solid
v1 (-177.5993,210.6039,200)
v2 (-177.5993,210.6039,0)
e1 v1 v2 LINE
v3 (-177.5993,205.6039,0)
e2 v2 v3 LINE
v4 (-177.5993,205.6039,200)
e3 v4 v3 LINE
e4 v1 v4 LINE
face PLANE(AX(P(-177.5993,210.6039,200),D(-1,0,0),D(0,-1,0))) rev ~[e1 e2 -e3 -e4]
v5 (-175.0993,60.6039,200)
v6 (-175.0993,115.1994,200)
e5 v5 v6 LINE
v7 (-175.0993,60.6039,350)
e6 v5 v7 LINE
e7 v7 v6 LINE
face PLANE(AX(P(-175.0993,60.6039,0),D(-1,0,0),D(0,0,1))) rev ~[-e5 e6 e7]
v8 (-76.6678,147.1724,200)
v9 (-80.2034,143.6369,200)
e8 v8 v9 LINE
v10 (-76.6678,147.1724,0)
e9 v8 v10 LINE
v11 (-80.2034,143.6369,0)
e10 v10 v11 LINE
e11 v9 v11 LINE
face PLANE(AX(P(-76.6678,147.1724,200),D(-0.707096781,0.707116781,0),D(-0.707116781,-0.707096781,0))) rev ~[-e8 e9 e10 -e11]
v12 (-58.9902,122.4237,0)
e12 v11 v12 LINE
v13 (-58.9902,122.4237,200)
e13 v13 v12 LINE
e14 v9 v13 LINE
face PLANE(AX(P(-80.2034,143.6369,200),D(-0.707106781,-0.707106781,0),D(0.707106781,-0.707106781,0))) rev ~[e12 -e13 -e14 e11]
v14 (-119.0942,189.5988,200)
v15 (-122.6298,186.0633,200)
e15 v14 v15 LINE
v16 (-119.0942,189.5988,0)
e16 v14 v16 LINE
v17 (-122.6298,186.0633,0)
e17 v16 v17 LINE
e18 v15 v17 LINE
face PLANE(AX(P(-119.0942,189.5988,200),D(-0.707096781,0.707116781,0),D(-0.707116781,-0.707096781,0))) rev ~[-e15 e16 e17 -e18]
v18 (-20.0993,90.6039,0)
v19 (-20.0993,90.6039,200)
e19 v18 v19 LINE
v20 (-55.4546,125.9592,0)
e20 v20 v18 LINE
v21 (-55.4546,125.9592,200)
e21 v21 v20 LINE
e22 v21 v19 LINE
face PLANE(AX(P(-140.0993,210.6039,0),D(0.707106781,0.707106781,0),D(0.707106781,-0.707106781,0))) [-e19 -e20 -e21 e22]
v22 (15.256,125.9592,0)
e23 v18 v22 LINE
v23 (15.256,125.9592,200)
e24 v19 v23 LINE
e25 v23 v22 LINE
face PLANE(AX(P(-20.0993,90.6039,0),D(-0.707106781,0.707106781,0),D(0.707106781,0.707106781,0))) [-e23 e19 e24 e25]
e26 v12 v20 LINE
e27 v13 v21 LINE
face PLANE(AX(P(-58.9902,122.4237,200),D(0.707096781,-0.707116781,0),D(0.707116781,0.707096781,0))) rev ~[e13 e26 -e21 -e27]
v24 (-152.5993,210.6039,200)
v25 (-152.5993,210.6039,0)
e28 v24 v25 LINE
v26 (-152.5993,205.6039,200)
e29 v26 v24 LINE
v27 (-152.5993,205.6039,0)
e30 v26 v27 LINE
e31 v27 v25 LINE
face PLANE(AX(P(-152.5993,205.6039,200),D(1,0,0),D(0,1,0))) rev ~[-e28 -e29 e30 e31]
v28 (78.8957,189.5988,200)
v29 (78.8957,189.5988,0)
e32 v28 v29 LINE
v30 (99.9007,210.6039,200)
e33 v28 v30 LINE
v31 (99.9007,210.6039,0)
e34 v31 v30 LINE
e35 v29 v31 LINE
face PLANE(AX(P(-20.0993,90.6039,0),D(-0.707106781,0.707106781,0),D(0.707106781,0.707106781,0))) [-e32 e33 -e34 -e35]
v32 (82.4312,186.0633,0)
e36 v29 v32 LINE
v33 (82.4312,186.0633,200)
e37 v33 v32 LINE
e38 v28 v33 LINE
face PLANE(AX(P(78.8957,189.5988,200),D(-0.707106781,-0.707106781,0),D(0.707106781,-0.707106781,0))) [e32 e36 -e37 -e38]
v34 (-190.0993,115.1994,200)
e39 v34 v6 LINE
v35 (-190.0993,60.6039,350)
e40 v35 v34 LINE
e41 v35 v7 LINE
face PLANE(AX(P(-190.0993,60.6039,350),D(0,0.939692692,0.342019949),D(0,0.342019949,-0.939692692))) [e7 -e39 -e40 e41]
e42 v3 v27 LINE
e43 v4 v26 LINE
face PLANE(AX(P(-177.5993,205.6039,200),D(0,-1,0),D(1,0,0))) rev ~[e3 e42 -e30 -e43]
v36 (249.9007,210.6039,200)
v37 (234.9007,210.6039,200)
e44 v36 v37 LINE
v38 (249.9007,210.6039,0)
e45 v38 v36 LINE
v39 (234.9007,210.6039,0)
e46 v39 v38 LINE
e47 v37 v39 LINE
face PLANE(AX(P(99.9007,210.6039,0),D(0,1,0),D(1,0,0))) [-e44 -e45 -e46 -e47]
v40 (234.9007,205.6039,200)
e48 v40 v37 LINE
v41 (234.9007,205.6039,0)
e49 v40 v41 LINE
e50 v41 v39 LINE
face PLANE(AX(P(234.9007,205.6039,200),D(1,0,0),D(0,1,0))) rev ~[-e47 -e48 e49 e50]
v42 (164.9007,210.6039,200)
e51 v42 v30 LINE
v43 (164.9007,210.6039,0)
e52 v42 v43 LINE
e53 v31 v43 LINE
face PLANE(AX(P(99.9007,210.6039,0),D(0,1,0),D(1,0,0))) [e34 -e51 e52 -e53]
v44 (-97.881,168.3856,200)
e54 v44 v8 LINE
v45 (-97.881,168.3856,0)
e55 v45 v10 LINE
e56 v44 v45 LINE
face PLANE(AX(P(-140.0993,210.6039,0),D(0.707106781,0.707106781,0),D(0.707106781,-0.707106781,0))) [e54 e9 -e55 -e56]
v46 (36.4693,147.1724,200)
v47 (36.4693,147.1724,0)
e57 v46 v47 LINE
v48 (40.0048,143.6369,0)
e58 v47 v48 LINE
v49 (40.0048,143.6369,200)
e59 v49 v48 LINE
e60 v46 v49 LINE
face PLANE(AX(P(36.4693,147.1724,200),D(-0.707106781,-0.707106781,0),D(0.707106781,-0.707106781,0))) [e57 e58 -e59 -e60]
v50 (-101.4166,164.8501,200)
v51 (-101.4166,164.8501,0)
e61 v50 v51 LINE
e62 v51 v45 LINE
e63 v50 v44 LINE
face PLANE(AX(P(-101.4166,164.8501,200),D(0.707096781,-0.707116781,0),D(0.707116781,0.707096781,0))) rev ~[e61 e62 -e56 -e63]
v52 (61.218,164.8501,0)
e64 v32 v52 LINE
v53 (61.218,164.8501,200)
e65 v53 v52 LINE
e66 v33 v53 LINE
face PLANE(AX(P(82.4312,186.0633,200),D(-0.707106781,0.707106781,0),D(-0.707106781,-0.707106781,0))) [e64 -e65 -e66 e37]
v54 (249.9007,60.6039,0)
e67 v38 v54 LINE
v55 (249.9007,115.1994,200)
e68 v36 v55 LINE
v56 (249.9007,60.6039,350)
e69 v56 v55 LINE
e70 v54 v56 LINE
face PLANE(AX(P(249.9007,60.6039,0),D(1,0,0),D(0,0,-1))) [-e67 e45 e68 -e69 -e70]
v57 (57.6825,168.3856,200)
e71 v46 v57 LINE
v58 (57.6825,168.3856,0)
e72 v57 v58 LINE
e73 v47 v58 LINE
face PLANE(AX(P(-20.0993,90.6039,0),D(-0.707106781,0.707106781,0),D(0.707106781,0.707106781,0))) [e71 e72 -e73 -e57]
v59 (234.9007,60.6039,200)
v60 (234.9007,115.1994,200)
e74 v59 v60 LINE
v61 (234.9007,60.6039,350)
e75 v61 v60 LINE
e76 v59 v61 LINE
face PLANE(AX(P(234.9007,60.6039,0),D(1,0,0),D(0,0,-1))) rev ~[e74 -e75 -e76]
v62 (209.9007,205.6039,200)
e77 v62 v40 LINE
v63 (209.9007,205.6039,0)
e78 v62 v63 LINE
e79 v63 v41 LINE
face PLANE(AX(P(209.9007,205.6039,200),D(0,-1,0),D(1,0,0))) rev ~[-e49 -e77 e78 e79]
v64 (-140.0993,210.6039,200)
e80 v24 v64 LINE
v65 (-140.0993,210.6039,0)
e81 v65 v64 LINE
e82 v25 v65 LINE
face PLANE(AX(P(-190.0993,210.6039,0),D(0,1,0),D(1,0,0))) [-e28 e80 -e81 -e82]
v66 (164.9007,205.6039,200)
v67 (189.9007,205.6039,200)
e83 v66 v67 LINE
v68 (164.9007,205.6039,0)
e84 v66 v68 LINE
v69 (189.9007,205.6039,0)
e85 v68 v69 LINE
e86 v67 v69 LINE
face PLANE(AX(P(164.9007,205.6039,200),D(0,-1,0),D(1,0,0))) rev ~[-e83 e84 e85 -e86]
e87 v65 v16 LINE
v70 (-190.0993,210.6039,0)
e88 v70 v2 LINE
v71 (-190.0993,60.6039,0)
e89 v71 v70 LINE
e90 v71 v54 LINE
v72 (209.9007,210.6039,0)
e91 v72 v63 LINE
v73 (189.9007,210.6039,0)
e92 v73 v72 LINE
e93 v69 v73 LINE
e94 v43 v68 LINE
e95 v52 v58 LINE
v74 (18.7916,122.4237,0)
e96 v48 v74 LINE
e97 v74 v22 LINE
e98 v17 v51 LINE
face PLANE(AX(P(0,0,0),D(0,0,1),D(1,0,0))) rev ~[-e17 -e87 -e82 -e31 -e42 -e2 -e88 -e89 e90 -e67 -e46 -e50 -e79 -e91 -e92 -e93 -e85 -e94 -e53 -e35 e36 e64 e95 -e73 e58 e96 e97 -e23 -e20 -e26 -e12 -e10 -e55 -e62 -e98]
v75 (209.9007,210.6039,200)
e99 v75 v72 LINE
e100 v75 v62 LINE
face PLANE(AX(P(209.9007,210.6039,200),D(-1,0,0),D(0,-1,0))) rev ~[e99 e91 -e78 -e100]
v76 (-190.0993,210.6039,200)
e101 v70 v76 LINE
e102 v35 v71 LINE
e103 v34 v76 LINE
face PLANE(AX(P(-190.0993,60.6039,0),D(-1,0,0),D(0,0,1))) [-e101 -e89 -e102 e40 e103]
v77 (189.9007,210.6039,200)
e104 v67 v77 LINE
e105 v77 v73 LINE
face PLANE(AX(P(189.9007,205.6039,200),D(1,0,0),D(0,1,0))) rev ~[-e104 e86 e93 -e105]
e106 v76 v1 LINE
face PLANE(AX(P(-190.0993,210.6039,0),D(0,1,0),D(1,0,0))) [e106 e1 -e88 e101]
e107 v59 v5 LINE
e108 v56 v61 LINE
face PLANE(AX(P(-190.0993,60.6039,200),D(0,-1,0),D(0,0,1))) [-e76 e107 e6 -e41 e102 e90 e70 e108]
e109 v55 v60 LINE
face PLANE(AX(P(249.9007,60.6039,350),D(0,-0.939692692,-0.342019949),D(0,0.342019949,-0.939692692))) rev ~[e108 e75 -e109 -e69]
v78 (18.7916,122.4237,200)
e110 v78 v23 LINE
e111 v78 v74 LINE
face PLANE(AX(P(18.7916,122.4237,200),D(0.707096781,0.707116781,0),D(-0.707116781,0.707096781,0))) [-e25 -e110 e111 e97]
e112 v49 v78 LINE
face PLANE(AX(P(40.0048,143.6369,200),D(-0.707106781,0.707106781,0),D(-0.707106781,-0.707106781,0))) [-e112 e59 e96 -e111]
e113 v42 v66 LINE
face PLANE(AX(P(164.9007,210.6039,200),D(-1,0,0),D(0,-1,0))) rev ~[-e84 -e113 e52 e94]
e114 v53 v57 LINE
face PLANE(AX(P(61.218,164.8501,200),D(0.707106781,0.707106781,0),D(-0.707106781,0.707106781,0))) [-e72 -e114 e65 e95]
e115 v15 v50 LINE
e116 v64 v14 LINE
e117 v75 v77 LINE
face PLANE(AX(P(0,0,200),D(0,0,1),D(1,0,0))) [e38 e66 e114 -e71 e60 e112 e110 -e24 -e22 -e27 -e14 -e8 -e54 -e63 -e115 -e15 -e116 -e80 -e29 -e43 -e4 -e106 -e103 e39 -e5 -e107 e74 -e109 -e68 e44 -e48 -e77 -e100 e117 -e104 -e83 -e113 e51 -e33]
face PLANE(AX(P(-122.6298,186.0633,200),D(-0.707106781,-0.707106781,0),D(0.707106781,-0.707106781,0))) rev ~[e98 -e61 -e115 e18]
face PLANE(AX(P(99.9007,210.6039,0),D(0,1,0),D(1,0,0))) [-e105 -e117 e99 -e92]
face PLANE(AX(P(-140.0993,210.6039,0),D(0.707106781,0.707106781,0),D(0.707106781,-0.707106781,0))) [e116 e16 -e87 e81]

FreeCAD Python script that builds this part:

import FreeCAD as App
import Part
import Sketcher
Q = App.Units.Quantity


def add_polygon(sketch, points):
    """Adds a closed chain of lines whose ends are joined by coincident constraints."""
    first, n = sketch.GeometryCount, len(points)
    for a, b in zip(points, points[1:] + points[:1]):
        sketch.addGeometry(Part.LineSegment(App.Vector(*a, 0), App.Vector(*b, 0)), False)
    for i in range(n):
        sketch.addConstraint(Sketcher.Constraint("Coincident", first + i, 2, first + (i + 1) % n, 1))

doc = App.newDocument("Part")
body = doc.addObject("PartDesign::Body", "Body")

# Sketch on XY plane
sketch1 = body.newObject("Sketcher::SketchObject", "Sketch")
sketch1.AttachmentSupport = (doc.getObject("XY_Plane"), [""])
sketch1.MapMode = "FlatFace"
add_polygon(sketch1, [(-190, 211), (-190, 61), (250, 61), (250, 211), (100, 211), (-20, 91), (-140, 211)])  # lines 0-6
sketch1.addConstraint([
    Sketcher.Constraint("Vertical", 0),
    Sketcher.Constraint("Horizontal", 1),
    Sketcher.Constraint("Vertical", 2),
    Sketcher.Constraint("Horizontal", 3),
    Sketcher.Constraint("Horizontal", 6),
    Sketcher.Constraint("Perpendicular", 4, 5),
    Sketcher.Constraint("Horizontal", 3, 2, 5, 2),
    Sketcher.Constraint("Equal", 3, 0),
    Sketcher.Constraint("Equal", 4, 5),
    Sketcher.Constraint("DistanceX", 3, 2, 3, 1, Q("150 mm")),
    Sketcher.Constraint("DistanceX", 6, 2, 6, 1, Q("50 mm")),
    Sketcher.Constraint("DistanceX", 0, 2, 4, 2, Q("170 mm")),
    Sketcher.Constraint("DistanceY", -1, 1, 0, 2, Q("60.604 mm")),
    Sketcher.Constraint("DistanceX", 0, 2, -1, 1, Q("190.0993 mm")),
])
pad1 = body.newObject("PartDesign::Pad", "Pad")
pad1.Profile = sketch1
pad1.Length = 200

# Sketch on YZ plane
sketch2 = body.newObject("Sketcher::SketchObject", "Sketch001")
sketch2.AttachmentSupport = (doc.getObject("YZ_Plane"), [""])
sketch2.MapMode = "FlatFace"
sketch2.AttachmentOffset = App.Placement(App.Vector(0, 0, 249.9007), App.Rotation())
add_polygon(sketch2, [(61, 350), (61, 200), (115, 200)])  # lines 0-2
sketch2.addConstraint([
    Sketcher.Constraint("Vertical", 0),
    Sketcher.Constraint("Horizontal", 1),
    Sketcher.Constraint("DistanceY", 0, 2, 0, 1, Q("150 mm")),
    Sketcher.Constraint("Angle", 2, Q("110 deg")),
    Sketcher.Constraint("DistanceY", -1, 1, 0, 2, Q("200 mm")),
    Sketcher.Constraint("DistanceX", -1, 1, 0, 2, Q("60.604 mm")),
])
pad2 = body.newObject("PartDesign::Pad", "Pad001")
pad2.Profile = sketch2
pad2.Length = 15
pad2.Reversed = True

# Sketch on YZ plane
sketch3 = body.newObject("Sketcher::SketchObject", "Sketch002")
sketch3.AttachmentSupport = (doc.getObject("YZ_Plane"), [""])
sketch3.MapMode = "FlatFace"
sketch3.AttachmentOffset = App.Placement(App.Vector(0, 0, -190.0993), App.Rotation())
add_polygon(sketch3, [(115, 200), (61, 200), (61, 350)])  # lines 0-2
sketch3.addConstraint([
    Sketcher.Constraint("Horizontal", 0),
    Sketcher.Constraint("Vertical", 1),
    Sketcher.Constraint("DistanceY", 1, 1, 1, 2, Q("150 mm")),
    Sketcher.Constraint("Angle", 2, Q("-70 deg")),
    Sketcher.Constraint("DistanceY", -1, 1, 0, 2, Q("200 mm")),
    Sketcher.Constraint("DistanceX", -1, 1, 0, 2, Q("60.604 mm")),
])
pad3 = body.newObject("PartDesign::Pad", "Pad002")
pad3.Profile = sketch3
pad3.Length = 15

# Sketch on XY plane
sketch4 = body.newObject("Sketcher::SketchObject", "Sketch003")
sketch4.AttachmentSupport = (doc.getObject("XY_Plane"), [""])
sketch4.MapMode = "FlatFace"
sketch4.AttachmentOffset = App.Placement(App.Vector(0, 0, 200), App.Rotation())
add_polygon(sketch4, [(-97.9, 168.4), (-119.1, 189.6), (-122.6, 186.1), (-101.4, 164.9)])  # lines 0-3
add_polygon(sketch4, [(-55.5, 126), (-76.7, 147.2), (-80.2, 143.6), (-59, 122.4)])  # lines 4-7
add_polygon(sketch4, [(-152.6, 205.6), (-152.6, 210.6), (-177.6, 210.6), (-177.6, 205.6)])  # lines 8-11
add_polygon(sketch4, [(36.5, 147.2), (15.3, 126), (18.8, 122.4), (40, 143.6)])  # lines 12-15
add_polygon(sketch4, [(78.9, 189.6), (57.7, 168.4), (61.2, 164.9), (82.4, 186.1)])  # lines 16-19
add_polygon(sketch4, [(189.9, 210.6), (164.9, 210.6), (164.9, 205.6), (189.9, 205.6)])  # lines 20-23
add_polygon(sketch4, [(234.9, 210.6), (209.9, 210.6), (209.9, 205.6), (234.9, 205.6)])  # lines 24-27
sketch4.addConstraint([
    Sketcher.Constraint("Vertical", 8),
    Sketcher.Constraint("Horizontal", 9),
    Sketcher.Constraint("Vertical", 10),
    Sketcher.Constraint("Horizontal", 11),
    Sketcher.Constraint("Horizontal", 20),
    Sketcher.Constraint("Vertical", 21),
    Sketcher.Constraint("Horizontal", 22),
    Sketcher.Constraint("Vertical", 23),
    Sketcher.Constraint("Horizontal", 24),
    Sketcher.Constraint("Vertical", 25),
    Sketcher.Constraint("Horizontal", 26),
    Sketcher.Constraint("Vertical", 27),
    Sketcher.Constraint("Perpendicular", 0, 1),
    Sketcher.Constraint("Perpendicular", 1, 2),
    Sketcher.Constraint("Perpendicular", 2, 3),
    Sketcher.Constraint("Perpendicular", 3, 4),
    Sketcher.Constraint("Perpendicular", 4, 5),
    Sketcher.Constraint("Perpendicular", 5, 6),
    Sketcher.Constraint("Perpendicular", 6, 7),
    Sketcher.Constraint("Parallel", 7, 12),
    Sketcher.Constraint("Perpendicular", 12, 13),
    Sketcher.Constraint("Perpendicular", 13, 14),
    Sketcher.Constraint("Perpendicular", 14, 15),
    Sketcher.Constraint("Perpendicular", 15, 16),
    Sketcher.Constraint("Perpendicular", 16, 17),
    Sketcher.Constraint("Perpendicular", 17, 18),
    Sketcher.Constraint("Perpendicular", 18, 19),
    Sketcher.Constraint("Horizontal", 7, 2, 12, 2),
    Sketcher.Constraint("Horizontal", 6, 2, 13, 2),
    Sketcher.Constraint("Horizontal", 5, 2, 14, 2),
    Sketcher.Constraint("Horizontal", 3, 2, 16, 2),
    Sketcher.Constraint("Horizontal", 2, 2, 17, 2),
    Sketcher.Constraint("Horizontal", 1, 2, 18, 2),
    Sketcher.Constraint("Horizontal", 9, 2, 20, 2),
    Sketcher.Constraint("Horizontal", 11, 2, 21, 2),
    Sketcher.Constraint("Horizontal", 23, 2, 24, 2),
    Sketcher.Constraint("Horizontal", 22, 2, 25, 2),
    Sketcher.Constraint("Equal", 11, 20),
    Sketcher.Constraint("Equal", 22, 24),
    Sketcher.Constraint("Equal", 2, 4),
    Sketcher.Constraint("Equal", 3, 5),
    Sketcher.Constraint("Equal", 6, 12),
    Sketcher.Constraint("DistanceX", 9, 2, 9, 1, Q("25 mm")),
    Sketcher.Constraint("DistanceY", 8, 1, 8, 2, Q("5 mm")),
    Sketcher.Constraint("Distance", 0, Q("30 mm")),
    Sketcher.Constraint("Distance", 1, Q("5 mm")),
    Sketcher.Constraint("DistanceX", 23, 2, 24, 2, Q("20 mm")),
    Sketcher.Constraint("DistanceY", -1, 1, 2, 2, Q("164.85 mm")),
    Sketcher.Constraint("DistanceX", 3, 2, -1, 1, Q("97.881 mm")),
    Sketcher.Constraint("DistanceY", -1, 1, 5, 2, Q("143.637 mm")),
    Sketcher.Constraint("DistanceY", -1, 1, 8, 2, Q("210.604 mm")),
    Sketcher.Constraint("DistanceX", -1, 1, 12, 2, Q("15.256 mm")),
    Sketcher.Constraint("DistanceX", -1, 1, 17, 2, Q("61.218 mm")),
    Sketcher.Constraint("DistanceX", 1, 2, 4, 2, Q("45.962 mm")),
    Sketcher.Constraint("DistanceX", 8, 2, 0, 2, Q("33.505 mm")),
    Sketcher.Constraint("DistanceX", 19, 2, 20, 2, Q("86.005 mm")),
])
pocket1 = body.newObject("PartDesign::Pocket", "Pocket")
pocket1.Profile = sketch4
pocket1.Length = 200

doc.recompute()
